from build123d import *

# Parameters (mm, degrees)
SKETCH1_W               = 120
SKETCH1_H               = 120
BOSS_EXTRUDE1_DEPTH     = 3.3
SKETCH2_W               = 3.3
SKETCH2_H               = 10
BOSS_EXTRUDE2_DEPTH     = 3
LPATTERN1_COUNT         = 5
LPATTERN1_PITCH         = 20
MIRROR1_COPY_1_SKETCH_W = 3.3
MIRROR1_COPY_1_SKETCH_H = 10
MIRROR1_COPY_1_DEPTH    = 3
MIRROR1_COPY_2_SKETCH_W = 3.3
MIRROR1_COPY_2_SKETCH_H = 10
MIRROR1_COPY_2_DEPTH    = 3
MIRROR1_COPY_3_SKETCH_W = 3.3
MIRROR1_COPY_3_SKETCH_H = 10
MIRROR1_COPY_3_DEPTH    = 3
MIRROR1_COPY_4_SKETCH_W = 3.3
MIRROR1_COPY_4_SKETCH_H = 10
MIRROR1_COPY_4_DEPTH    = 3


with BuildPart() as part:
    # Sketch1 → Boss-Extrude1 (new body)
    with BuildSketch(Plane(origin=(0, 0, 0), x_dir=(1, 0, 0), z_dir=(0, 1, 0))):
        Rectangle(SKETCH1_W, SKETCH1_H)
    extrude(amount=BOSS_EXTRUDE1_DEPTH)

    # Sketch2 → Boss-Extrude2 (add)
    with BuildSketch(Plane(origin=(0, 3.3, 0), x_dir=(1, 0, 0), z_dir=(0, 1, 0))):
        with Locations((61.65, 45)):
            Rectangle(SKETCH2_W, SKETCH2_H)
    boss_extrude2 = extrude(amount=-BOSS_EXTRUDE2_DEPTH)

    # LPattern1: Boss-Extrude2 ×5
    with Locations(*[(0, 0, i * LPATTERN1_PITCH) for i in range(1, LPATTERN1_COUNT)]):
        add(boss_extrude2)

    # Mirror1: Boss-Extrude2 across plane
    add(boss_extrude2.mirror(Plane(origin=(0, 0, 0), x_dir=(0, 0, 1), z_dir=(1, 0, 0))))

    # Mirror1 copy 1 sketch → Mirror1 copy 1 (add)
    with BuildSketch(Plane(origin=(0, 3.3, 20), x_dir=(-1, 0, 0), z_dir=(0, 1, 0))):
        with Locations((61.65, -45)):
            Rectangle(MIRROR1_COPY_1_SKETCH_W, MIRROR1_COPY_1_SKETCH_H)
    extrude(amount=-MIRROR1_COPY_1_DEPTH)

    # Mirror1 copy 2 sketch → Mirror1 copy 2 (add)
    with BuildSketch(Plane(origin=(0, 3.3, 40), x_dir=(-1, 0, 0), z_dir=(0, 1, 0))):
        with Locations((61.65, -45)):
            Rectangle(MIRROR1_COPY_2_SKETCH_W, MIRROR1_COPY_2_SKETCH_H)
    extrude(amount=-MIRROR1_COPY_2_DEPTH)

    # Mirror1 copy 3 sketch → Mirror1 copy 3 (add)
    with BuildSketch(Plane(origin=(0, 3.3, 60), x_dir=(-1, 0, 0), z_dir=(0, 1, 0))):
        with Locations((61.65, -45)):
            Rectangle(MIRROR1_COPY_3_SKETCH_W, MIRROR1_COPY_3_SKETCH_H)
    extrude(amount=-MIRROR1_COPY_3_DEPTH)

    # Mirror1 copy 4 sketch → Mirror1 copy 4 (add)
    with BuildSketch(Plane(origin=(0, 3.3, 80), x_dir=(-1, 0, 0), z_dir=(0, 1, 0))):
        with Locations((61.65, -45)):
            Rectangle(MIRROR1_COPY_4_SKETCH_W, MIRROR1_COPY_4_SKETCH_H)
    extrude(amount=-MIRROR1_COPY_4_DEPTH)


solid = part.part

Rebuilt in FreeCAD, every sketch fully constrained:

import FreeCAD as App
import Part
import Sketcher
Q = App.Units.Quantity


def add_polygon(sketch, points):
    """Adds a closed chain of lines whose ends are joined by coincident constraints."""
    first, n = sketch.GeometryCount, len(points)
    for a, b in zip(points, points[1:] + points[:1]):
        sketch.addGeometry(Part.LineSegment(App.Vector(*a, 0), App.Vector(*b, 0)), False)
    for i in range(n):
        sketch.addConstraint(Sketcher.Constraint("Coincident", first + i, 2, first + (i + 1) % n, 1))

doc = App.newDocument("Part")
body = doc.addObject("PartDesign::Body", "Body")

# Sketch on XZ plane
sketch1 = body.newObject("Sketcher::SketchObject", "Sketch")
sketch1.AttachmentSupport = (doc.getObject("XZ_Plane"), [""])
sketch1.MapMode = "FlatFace"
add_polygon(sketch1, [(-60, -60), (-60, 60), (60, 60), (60, -60)])  # lines 0-3
sketch1.addConstraint([
    Sketcher.Constraint("Vertical", 0),
    Sketcher.Constraint("Horizontal", 1),
    Sketcher.Constraint("Vertical", 2),
    Sketcher.Constraint("Horizontal", 3),
    Sketcher.Constraint("Symmetric", 0, 2, 2, 2, -1, 1),
    Sketcher.Constraint("Equal", 3, 0),
    Sketcher.Constraint("DistanceX", 1, 1, 1, 2, Q("120 mm")),
])
pad1 = body.newObject("PartDesign::Pad", "Pad")
pad1.Profile = sketch1
pad1.Length = 3.3
pad1.Reversed = True

# Sketch on XZ plane
sketch2 = body.newObject("Sketcher::SketchObject", "Sketch001")
sketch2.AttachmentSupport = (doc.getObject("XZ_Plane"), [""])
sketch2.MapMode = "FlatFace"
sketch2.AttachmentOffset = App.Placement(App.Vector(0, 0, -3.3), App.Rotation())
add_polygon(sketch2, [(60, -50), (60, -40), (63.3, -40), (63.3, -50)])  # lines 0-3
sketch2.addConstraint([
    Sketcher.Constraint("Vertical", 0),
    Sketcher.Constraint("Horizontal", 1),
    Sketcher.Constraint("Vertical", 2),
    Sketcher.Constraint("Horizontal", 3),
    Sketcher.Constraint("DistanceY", 0, 1, 0, 2, Q("10 mm")),
    Sketcher.Constraint("DistanceX", 1, 1, 1, 2, Q("3.3 mm")),
    Sketcher.Constraint("DistanceX", -1, 1, 0, 2, Q("60 mm")),
    Sketcher.Constraint("DistanceY", 0, 2, -1, 1, Q("40 mm")),
])
pad2 = body.newObject("PartDesign::Pad", "Pad001")
pad2.Profile = sketch2
pad2.Length = 3
doc.recompute()

linearpattern = body.newObject("PartDesign::LinearPattern", "LinearPattern")
linearpattern.Originals = [pad2]
linearpattern.Direction = (doc.getObject("Z_Axis"), [""])
linearpattern.Mode = "offset"
linearpattern.Offset = 20
linearpattern.Occurrences = 5
body.Tip = linearpattern
doc.recompute()

mirrored = body.newObject("PartDesign::Mirrored", "Mirrored")
mirrored.Originals = [pad2]
mirrored.MirrorPlane = (doc.getObject("YZ_Plane"), [""])
body.Tip = mirrored

# Sketch on XZ plane
sketch3 = body.newObject("Sketcher::SketchObject", "Sketch002")
sketch3.AttachmentSupport = (doc.getObject("XZ_Plane"), [""])
sketch3.MapMode = "FlatFace"
sketch3.AttachmentOffset = App.Placement(App.Vector(0, 0, -3.3), App.Rotation())
add_polygon(sketch3, [(-60, -20), (-60, -30), (-63.3, -30), (-63.3, -20)])  # lines 0-3
sketch3.addConstraint([
    Sketcher.Constraint("Vertical", 0),
    Sketcher.Constraint("Horizontal", 1),
    Sketcher.Constraint("Vertical", 2),
    Sketcher.Constraint("Horizontal", 3),
    Sketcher.Constraint("DistanceY", 0, 2, 0, 1, Q("10 mm")),
    Sketcher.Constraint("DistanceX", 1, 2, 1, 1, Q("3.3 mm")),
    Sketcher.Constraint("DistanceX", 0, 2, -1, 1, Q("60 mm")),
    Sketcher.Constraint("DistanceY", 0, 2, -1, 1, Q("30 mm")),
])
pad3 = body.newObject("PartDesign::Pad", "Pad002")
pad3.Profile = sketch3
pad3.Length = 3

# Sketch on XZ plane
sketch4 = body.newObject("Sketcher::SketchObject", "Sketch003")
sketch4.AttachmentSupport = (doc.getObject("XZ_Plane"), [""])
sketch4.MapMode = "FlatFace"
sketch4.AttachmentOffset = App.Placement(App.Vector(0, 0, -3.3), App.Rotation())
add_polygon(sketch4, [(-60, 0), (-60, -10), (-63.3, -10), (-63.3, 0)])  # lines 0-3
sketch4.addConstraint([
    Sketcher.Constraint("Vertical", 0),
    Sketcher.Constraint("Horizontal", 1),
    Sketcher.Constraint("Vertical", 2),
    Sketcher.Constraint("Horizontal", 3),
    Sketcher.Constraint("PointOnObject", 2, 2, -1),
    Sketcher.Constraint("DistanceY", 0, 2, 0, 1, Q("10 mm")),
    Sketcher.Constraint("DistanceX", 1, 2, 1, 1, Q("3.3 mm")),
    Sketcher.Constraint("DistanceX", 0, 2, -1, 1, Q("60 mm")),
])
pad4 = body.newObject("PartDesign::Pad", "Pad003")
pad4.Profile = sketch4
pad4.Length = 3

# Sketch on XZ plane
sketch5 = body.newObject("Sketcher::SketchObject", "Sketch004")
sketch5.AttachmentSupport = (doc.getObject("XZ_Plane"), [""])
sketch5.MapMode = "FlatFace"
sketch5.AttachmentOffset = App.Placement(App.Vector(0, 0, -3.3), App.Rotation())
add_polygon(sketch5, [(-60, 20), (-60, 10), (-63.3, 10), (-63.3, 20)])  # lines 0-3
sketch5.addConstraint([
    Sketcher.Constraint("Vertical", 0),
    Sketcher.Constraint("Horizontal", 1),
    Sketcher.Constraint("Vertical", 2),
    Sketcher.Constraint("Horizontal", 3),
    Sketcher.Constraint("DistanceY", 0, 2, 0, 1, Q("10 mm")),
    Sketcher.Constraint("DistanceX", 1, 2, 1, 1, Q("3.3 mm")),
    Sketcher.Constraint("DistanceX", 0, 2, -1, 1, Q("60 mm")),
    Sketcher.Constraint("DistanceY", -1, 1, 0, 2, Q("10 mm")),
])
pad5 = body.newObject("PartDesign::Pad", "Pad004")
pad5.Profile = sketch5
pad5.Length = 3

# Sketch on XZ plane
sketch6 = body.newObject("Sketcher::SketchObject", "Sketch005")
sketch6.AttachmentSupport = (doc.getObject("XZ_Plane"), [""])
sketch6.MapMode = "FlatFace"
sketch6.AttachmentOffset = App.Placement(App.Vector(0, 0, -3.3), App.Rotation())
add_polygon(sketch6, [(-60, 40), (-60, 30), (-63.3, 30), (-63.3, 40)])  # lines 0-3
sketch6.addConstraint([
    Sketcher.Constraint("Vertical", 0),
    Sketcher.Constraint("Horizontal", 1),
    Sketcher.Constraint("Vertical", 2),
    Sketcher.Constraint("Horizontal", 3),
    Sketcher.Constraint("DistanceY", 0, 2, 0, 1, Q("10 mm")),
    Sketcher.Constraint("DistanceX", 1, 2, 1, 1, Q("3.3 mm")),
    Sketcher.Constraint("DistanceX", 0, 2, -1, 1, Q("60 mm")),
    Sketcher.Constraint("DistanceY", -1, 1, 0, 2, Q("30 mm")),
])
pad6 = body.newObject("PartDesign::Pad", "Pad005")
pad6.Profile = sketch6
pad6.Length = 3

doc.recompute()
